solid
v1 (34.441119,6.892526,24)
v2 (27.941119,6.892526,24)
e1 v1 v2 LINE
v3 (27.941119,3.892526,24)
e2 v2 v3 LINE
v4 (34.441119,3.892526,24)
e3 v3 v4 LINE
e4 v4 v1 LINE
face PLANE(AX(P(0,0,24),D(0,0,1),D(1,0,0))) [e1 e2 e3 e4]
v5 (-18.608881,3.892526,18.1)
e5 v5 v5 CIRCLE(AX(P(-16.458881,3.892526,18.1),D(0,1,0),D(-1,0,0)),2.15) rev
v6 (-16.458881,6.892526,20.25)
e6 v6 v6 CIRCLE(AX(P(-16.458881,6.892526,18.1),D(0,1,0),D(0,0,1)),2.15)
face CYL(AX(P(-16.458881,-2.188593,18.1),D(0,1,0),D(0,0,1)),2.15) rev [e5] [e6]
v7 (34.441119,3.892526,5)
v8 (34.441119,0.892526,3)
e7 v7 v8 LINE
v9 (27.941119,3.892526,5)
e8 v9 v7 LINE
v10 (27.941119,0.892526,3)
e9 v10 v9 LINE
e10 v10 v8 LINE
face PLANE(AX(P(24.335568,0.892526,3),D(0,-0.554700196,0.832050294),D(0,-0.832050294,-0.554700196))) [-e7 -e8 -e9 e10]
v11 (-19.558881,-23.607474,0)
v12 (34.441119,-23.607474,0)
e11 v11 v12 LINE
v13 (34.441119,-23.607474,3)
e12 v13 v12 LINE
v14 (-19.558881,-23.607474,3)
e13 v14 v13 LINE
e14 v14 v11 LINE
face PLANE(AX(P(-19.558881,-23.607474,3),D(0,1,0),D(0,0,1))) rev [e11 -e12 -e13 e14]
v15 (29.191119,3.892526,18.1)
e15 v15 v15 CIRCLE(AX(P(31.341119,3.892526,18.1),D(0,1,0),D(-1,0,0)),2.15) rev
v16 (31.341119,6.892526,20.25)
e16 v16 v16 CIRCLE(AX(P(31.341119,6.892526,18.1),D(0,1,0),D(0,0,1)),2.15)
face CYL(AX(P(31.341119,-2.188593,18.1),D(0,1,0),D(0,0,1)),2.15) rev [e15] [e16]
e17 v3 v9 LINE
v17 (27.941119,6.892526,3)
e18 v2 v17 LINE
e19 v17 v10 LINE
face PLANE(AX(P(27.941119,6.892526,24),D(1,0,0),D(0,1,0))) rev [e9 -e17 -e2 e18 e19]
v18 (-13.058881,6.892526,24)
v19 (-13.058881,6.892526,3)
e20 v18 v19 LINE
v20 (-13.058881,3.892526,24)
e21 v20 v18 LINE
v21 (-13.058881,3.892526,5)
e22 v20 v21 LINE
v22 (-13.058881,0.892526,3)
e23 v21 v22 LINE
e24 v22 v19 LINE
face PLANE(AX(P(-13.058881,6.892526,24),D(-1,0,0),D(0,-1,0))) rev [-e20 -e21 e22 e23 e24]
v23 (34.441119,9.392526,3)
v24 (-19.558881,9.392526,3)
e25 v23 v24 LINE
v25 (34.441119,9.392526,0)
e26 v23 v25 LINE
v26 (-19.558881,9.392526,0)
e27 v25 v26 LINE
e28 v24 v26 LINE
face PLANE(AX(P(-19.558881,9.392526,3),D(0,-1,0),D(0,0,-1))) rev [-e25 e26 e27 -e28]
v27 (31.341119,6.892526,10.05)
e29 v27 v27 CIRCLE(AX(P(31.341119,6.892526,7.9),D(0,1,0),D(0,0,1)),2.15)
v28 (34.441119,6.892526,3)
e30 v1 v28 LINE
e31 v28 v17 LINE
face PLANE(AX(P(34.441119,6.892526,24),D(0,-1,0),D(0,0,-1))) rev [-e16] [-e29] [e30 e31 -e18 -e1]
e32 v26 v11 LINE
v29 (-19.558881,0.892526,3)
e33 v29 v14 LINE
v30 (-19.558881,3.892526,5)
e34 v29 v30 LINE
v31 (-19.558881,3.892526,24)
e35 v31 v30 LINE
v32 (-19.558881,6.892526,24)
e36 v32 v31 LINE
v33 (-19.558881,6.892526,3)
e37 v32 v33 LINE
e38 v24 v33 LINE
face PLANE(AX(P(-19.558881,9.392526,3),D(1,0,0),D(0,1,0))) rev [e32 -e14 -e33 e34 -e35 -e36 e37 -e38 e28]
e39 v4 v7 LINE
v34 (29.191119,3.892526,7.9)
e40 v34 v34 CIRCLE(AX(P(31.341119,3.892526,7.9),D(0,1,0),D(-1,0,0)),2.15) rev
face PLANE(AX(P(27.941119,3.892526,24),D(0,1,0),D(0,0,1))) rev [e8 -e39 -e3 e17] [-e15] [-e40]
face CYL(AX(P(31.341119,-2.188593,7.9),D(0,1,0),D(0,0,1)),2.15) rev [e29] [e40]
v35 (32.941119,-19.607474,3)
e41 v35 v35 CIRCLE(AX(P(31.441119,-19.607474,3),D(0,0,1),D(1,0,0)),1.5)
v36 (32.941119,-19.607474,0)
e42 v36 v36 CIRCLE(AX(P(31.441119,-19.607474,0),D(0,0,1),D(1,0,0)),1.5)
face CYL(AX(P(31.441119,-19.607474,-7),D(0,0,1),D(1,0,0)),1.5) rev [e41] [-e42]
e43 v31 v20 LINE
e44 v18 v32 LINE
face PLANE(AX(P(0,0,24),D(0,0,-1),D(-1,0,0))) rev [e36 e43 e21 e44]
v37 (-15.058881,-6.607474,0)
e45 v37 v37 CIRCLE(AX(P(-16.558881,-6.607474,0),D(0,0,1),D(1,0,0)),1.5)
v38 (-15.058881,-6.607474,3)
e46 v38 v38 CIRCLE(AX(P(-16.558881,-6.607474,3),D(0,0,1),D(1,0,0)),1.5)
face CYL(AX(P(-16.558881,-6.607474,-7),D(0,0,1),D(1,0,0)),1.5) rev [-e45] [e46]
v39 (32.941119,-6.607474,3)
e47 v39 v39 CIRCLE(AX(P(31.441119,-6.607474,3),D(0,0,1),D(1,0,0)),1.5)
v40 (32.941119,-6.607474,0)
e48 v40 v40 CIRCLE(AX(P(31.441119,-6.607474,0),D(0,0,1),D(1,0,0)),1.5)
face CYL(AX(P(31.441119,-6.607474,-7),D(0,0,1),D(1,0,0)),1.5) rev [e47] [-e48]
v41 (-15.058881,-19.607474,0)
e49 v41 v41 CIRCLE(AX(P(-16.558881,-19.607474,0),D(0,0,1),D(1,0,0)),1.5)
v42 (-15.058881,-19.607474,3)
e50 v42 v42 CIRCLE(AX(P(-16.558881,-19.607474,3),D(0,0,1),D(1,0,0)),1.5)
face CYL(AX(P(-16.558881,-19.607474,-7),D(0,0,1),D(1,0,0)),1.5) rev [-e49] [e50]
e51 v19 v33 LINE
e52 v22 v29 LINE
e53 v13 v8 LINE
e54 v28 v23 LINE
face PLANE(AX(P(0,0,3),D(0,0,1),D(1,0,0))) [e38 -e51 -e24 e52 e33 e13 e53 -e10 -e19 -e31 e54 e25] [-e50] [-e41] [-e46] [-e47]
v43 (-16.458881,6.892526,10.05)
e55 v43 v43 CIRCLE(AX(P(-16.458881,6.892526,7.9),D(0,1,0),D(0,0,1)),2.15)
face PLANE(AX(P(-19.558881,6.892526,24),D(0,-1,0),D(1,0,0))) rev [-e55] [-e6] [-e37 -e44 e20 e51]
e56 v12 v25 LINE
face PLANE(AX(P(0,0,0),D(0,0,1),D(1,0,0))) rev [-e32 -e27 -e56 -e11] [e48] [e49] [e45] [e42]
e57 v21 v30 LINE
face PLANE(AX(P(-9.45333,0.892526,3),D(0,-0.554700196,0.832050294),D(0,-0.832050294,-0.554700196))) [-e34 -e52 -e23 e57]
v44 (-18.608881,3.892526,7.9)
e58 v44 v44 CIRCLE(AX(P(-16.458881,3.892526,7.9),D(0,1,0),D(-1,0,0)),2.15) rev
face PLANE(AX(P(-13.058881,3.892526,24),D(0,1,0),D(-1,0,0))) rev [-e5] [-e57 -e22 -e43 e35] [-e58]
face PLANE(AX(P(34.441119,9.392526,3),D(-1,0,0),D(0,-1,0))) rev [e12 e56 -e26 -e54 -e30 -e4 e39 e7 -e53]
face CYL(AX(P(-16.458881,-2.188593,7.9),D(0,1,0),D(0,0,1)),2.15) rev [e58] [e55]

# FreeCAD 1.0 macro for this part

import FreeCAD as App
import Part
import Sketcher
from FreeCAD import Vector
Q = App.Units.Quantity

doc = App.newDocument("Part")
body = doc.addObject("PartDesign::Body", "Body")

sketch1 = body.newObject("Sketcher::SketchObject", "Sketch")
sketch1.AttachmentSupport = (doc.getObject("XY_Plane"), [""])
sketch1.MapMode = "FlatFace"
sketch1.addGeometry(Part.LineSegment(Vector(-20, 9, 0), Vector(-20, -24, 0)), False)
sketch1.addGeometry(Part.LineSegment(Vector(-20, -24, 0), Vector(34, -24, 0)), False)
sketch1.addGeometry(Part.LineSegment(Vector(34, -24, 0), Vector(34, 9, 0)), False)
sketch1.addGeometry(Part.LineSegment(Vector(34, 9, 0), Vector(-20, 9, 0)), False)
sketch1.addConstraint(Sketcher.Constraint("Coincident", 0, 2, 1, 1))
sketch1.addConstraint(Sketcher.Constraint("Coincident", 1, 2, 2, 1))
sketch1.addConstraint(Sketcher.Constraint("Coincident", 2, 2, 3, 1))
sketch1.addConstraint(Sketcher.Constraint("Coincident", 3, 2, 0, 1))
sketch1.addConstraint(Sketcher.Constraint("Vertical", 0))
sketch1.addConstraint(Sketcher.Constraint("Horizontal", 1))
sketch1.addConstraint(Sketcher.Constraint("Vertical", 2))
sketch1.addConstraint(Sketcher.Constraint("Horizontal", 3))
sketch1.addConstraint(Sketcher.Constraint("DistanceX", 1, 1, 1, 2, Q("54 mm")))
sketch1.addConstraint(Sketcher.Constraint("DistanceY", 0, 2, 0, 1, Q("33 mm")))
sketch1.addConstraint(Sketcher.Constraint("DistanceX", 0, 2, -1, 1, Q("19.558881 mm")))
sketch1.addConstraint(Sketcher.Constraint("DistanceY", 0, 2, -1, 1, Q("23.607474 mm")))
pad1 = body.newObject("PartDesign::Pad", "Pad")
pad1.Profile = sketch1
pad1.Length = 3

sketch2 = body.newObject("Sketcher::SketchObject", "Sketch001")
sketch2.AttachmentSupport = (doc.getObject("XY_Plane"), [""])
sketch2.MapMode = "FlatFace"
sketch2.AttachmentOffset = App.Placement(Vector(0, 0, 3), App.Rotation())
sketch2.addGeometry(Part.LineSegment(Vector(27.9, 6.9, 0), Vector(27.9, 3.9, 0)), False)
sketch2.addGeometry(Part.LineSegment(Vector(27.9, 3.9, 0), Vector(34.4, 3.9, 0)), False)
sketch2.addGeometry(Part.LineSegment(Vector(34.4, 3.9, 0), Vector(34.4, 6.9, 0)), False)
sketch2.addGeometry(Part.LineSegment(Vector(34.4, 6.9, 0), Vector(27.9, 6.9, 0)), False)
sketch2.addGeometry(Part.LineSegment(Vector(-19.6, 6.9, 0), Vector(-19.6, 3.9, 0)), False)
sketch2.addGeometry(Part.LineSegment(Vector(-19.6, 3.9, 0), Vector(-13.1, 3.9, 0)), False)
sketch2.addGeometry(Part.LineSegment(Vector(-13.1, 3.9, 0), Vector(-13.1, 6.9, 0)), False)
sketch2.addGeometry(Part.LineSegment(Vector(-13.1, 6.9, 0), Vector(-19.6, 6.9, 0)), False)
sketch2.addConstraint(Sketcher.Constraint("Coincident", 0, 2, 1, 1))
sketch2.addConstraint(Sketcher.Constraint("Coincident", 1, 2, 2, 1))
sketch2.addConstraint(Sketcher.Constraint("Coincident", 2, 2, 3, 1))
sketch2.addConstraint(Sketcher.Constraint("Coincident", 3, 2, 0, 1))
sketch2.addConstraint(Sketcher.Constraint("Coincident", 4, 2, 5, 1))
sketch2.addConstraint(Sketcher.Constraint("Coincident", 5, 2, 6, 1))
sketch2.addConstraint(Sketcher.Constraint("Coincident", 6, 2, 7, 1))
sketch2.addConstraint(Sketcher.Constraint("Coincident", 7, 2, 4, 1))
sketch2.addConstraint(Sketcher.Constraint("Vertical", 0))
sketch2.addConstraint(Sketcher.Constraint("Horizontal", 1))
sketch2.addConstraint(Sketcher.Constraint("Vertical", 2))
sketch2.addConstraint(Sketcher.Constraint("Horizontal", 3))
sketch2.addConstraint(Sketcher.Constraint("Vertical", 4))
sketch2.addConstraint(Sketcher.Constraint("Horizontal", 5))
sketch2.addConstraint(Sketcher.Constraint("Vertical", 6))
sketch2.addConstraint(Sketcher.Constraint("Horizontal", 7))
sketch2.addConstraint(Sketcher.Constraint("Horizontal", 1, 2, 4, 2))
sketch2.addConstraint(Sketcher.Constraint("Horizontal", 3, 2, 6, 2))
sketch2.addConstraint(Sketcher.Constraint("Equal", 3, 5))
sketch2.addConstraint(Sketcher.Constraint("DistanceY", 0, 2, 0, 1, Q("3 mm")))
sketch2.addConstraint(Sketcher.Constraint("DistanceX", 1, 1, 1, 2, Q("6.5 mm")))
sketch2.addConstraint(Sketcher.Constraint("DistanceX", 4, 2, 1, 2, Q("54 mm")))
sketch2.addConstraint(Sketcher.Constraint("DistanceX", -1, 1, 0, 2, Q("27.941119 mm")))
sketch2.addConstraint(Sketcher.Constraint("DistanceY", -1, 1, 0, 2, Q("3.892526 mm")))
pad2 = body.newObject("PartDesign::Pad", "Pad001")
pad2.Profile = sketch2
pad2.Length = 21

sketch3 = body.newObject("Sketcher::SketchObject", "Sketch002")
sketch3.AttachmentSupport = (doc.getObject("XZ_Plane"), [""])
sketch3.MapMode = "FlatFace"
sketch3.AttachmentOffset = App.Placement(Vector(0, 0, -6.892526), App.Rotation())
sketch3.addGeometry(Part.Circle(Vector(31.3, 18.1, 0), Vector(0, 0, 1), 2.1), False)
sketch3.addGeometry(Part.Circle(Vector(31.3, 7.9, 0), Vector(0, 0, 1), 2.1), False)
sketch3.addGeometry(Part.Circle(Vector(-16.5, 18.1, 0), Vector(0, 0, 1), 2.1), False)
sketch3.addGeometry(Part.Circle(Vector(-16.5, 7.9, 0), Vector(0, 0, 1), 2.1), False)
sketch3.addConstraint(Sketcher.Constraint("Equal", 0, 1))
sketch3.addConstraint(Sketcher.Constraint("Equal", 1, 2))
sketch3.addConstraint(Sketcher.Constraint("Equal", 2, 3))
sketch3.addConstraint(Sketcher.Constraint("Horizontal", 0, 3, 2, 3))
sketch3.addConstraint(Sketcher.Constraint("Horizontal", 1, 3, 3, 3))
sketch3.addConstraint(Sketcher.Constraint("Vertical", 0, 3, 1, 3))
sketch3.addConstraint(Sketcher.Constraint("Vertical", 2, 3, 3, 3))
sketch3.addConstraint(Sketcher.Constraint("Diameter", 0, Q("4.3 mm")))
sketch3.addConstraint(Sketcher.Constraint("DistanceY", -1, 1, 0, 3, Q("18.1 mm")))
sketch3.addConstraint(Sketcher.Constraint("DistanceY", -1, 1, 1, 3, Q("7.9 mm")))
sketch3.addConstraint(Sketcher.Constraint("DistanceX", 2, 3, 0, 3, Q("47.8 mm")))
sketch3.addConstraint(Sketcher.Constraint("DistanceX", -1, 1, 0, 3, Q("31.341119 mm")))
pocket1 = body.newObject("PartDesign::Pocket", "Pocket")
pocket1.Profile = sketch3
pocket1.Length = 3
pocket1.Reversed = True

sketch4 = body.newObject("Sketcher::SketchObject", "Sketch003")
sketch4.AttachmentSupport = (doc.getObject("XY_Plane"), [""])
sketch4.MapMode = "FlatFace"
sketch4.AttachmentOffset = App.Placement(Vector(0, 0, 3), App.Rotation())
sketch4.addGeometry(Part.Circle(Vector(31.4, -19.6, 0), Vector(0, 0, 1), 1.5), False)
sketch4.addGeometry(Part.Circle(Vector(-16.6, -19.6, 0), Vector(0, 0, 1), 1.5), False)
sketch4.addGeometry(Part.Circle(Vector(-16.6, -6.6, 0), Vector(0, 0, 1), 1.5), False)
sketch4.addGeometry(Part.Circle(Vector(31.4, -6.6, 0), Vector(0, 0, 1), 1.5), False)
sketch4.addConstraint(Sketcher.Constraint("Equal", 0, 1))
sketch4.addConstraint(Sketcher.Constraint("Equal", 1, 2))
sketch4.addConstraint(Sketcher.Constraint("Equal", 2, 3))
sketch4.addConstraint(Sketcher.Constraint("Horizontal", 0, 3, 1, 3))
sketch4.addConstraint(Sketcher.Constraint("Horizontal", 2, 3, 3, 3))
sketch4.addConstraint(Sketcher.Constraint("Vertical", 1, 3, 2, 3))
sketch4.addConstraint(Sketcher.Constraint("Vertical", 0, 3, 3, 3))
sketch4.addConstraint(Sketcher.Constraint("Diameter", 0, Q("3 mm")))
sketch4.addConstraint(Sketcher.Constraint("DistanceX", 1, 3, 0, 3, Q("48 mm")))
sketch4.addConstraint(Sketcher.Constraint("DistanceY", 1, 3, 2, 3, Q("13 mm")))
sketch4.addConstraint(Sketcher.Constraint("DistanceX", -1, 1, 0, 3, Q("31.441119 mm")))
sketch4.addConstraint(Sketcher.Constraint("DistanceY", 0, 3, -1, 1, Q("19.607474 mm")))
pocket2 = body.newObject("PartDesign::Pocket", "Pocket001")
pocket2.Profile = sketch4
pocket2.Length = 10

sketch5 = body.newObject("Sketcher::SketchObject", "Sketch004")
sketch5.AttachmentSupport = (doc.getObject("YZ_Plane"), [""])
sketch5.MapMode = "FlatFace"
sketch5.AttachmentOffset = App.Placement(Vector(0, 0, 34.441119), App.Rotation())
sketch5.addGeometry(Part.LineSegment(Vector(3.9, 3, 0), Vector(3.9, 5, 0)), False)
sketch5.addGeometry(Part.LineSegment(Vector(3.9, 5, 0), Vector(0.9, 3, 0)), False)
sketch5.addGeometry(Part.LineSegment(Vector(0.9, 3, 0), Vector(3.9, 3, 0)), False)
sketch5.addConstraint(Sketcher.Constraint("Coincident", 0, 2, 1, 1))
sketch5.addConstraint(Sketcher.Constraint("Coincident", 1, 2, 2, 1))
sketch5.addConstraint(Sketcher.Constraint("Coincident", 2, 2, 0, 1))
sketch5.addConstraint(Sketcher.Constraint("Vertical", 0))
sketch5.addConstraint(Sketcher.Constraint("Horizontal", 2))
sketch5.addConstraint(Sketcher.Constraint("DistanceX", 2, 1, 2, 2, Q("3 mm")))
sketch5.addConstraint(Sketcher.Constraint("DistanceY", 0, 1, 0, 2, Q("2 mm")))
sketch5.addConstraint(Sketcher.Constraint("DistanceY", -1, 1, 0, 2, Q("5 mm")))
sketch5.addConstraint(Sketcher.Constraint("DistanceX", -1, 1, 0, 2, Q("3.892526 mm")))
pad3 = body.newObject("PartDesign::Pad", "Pad002")
pad3.Profile = sketch5
pad3.Length = 6.5
pad3.Reversed = True

sketch6 = body.newObject("Sketcher::SketchObject", "Sketch005")
sketch6.AttachmentSupport = (doc.getObject("YZ_Plane"), [""])
sketch6.MapMode = "FlatFace"
sketch6.AttachmentOffset = App.Placement(Vector(0, 0, -19.558881), App.Rotation())
sketch6.addGeometry(Part.LineSegment(Vector(3.9, 5, 0), Vector(3.9, 3, 0)), False)
sketch6.addGeometry(Part.LineSegment(Vector(3.9, 3, 0), Vector(0.9, 3, 0)), False)
sketch6.addGeometry(Part.LineSegment(Vector(0.9, 3, 0), Vector(3.9, 5, 0)), False)
sketch6.addConstraint(Sketcher.Constraint("Coincident", 0, 2, 1, 1))
sketch6.addConstraint(Sketcher.Constraint("Coincident", 1, 2, 2, 1))
sketch6.addConstraint(Sketcher.Constraint("Coincident", 2, 2, 0, 1))
sketch6.addConstraint(Sketcher.Constraint("Vertical", 0))
sketch6.addConstraint(Sketcher.Constraint("Horizontal", 1))
sketch6.addConstraint(Sketcher.Constraint("DistanceX", 1, 2, 1, 1, Q("3 mm")))
sketch6.addConstraint(Sketcher.Constraint("DistanceY", 0, 2, 0, 1, Q("2 mm")))
sketch6.addConstraint(Sketcher.Constraint("DistanceY", -1, 1, 0, 2, Q("3 mm")))
sketch6.addConstraint(Sketcher.Constraint("DistanceX", -1, 1, 0, 2, Q("3.892526 mm")))
pad4 = body.newObject("PartDesign::Pad", "Pad003")
pad4.Profile = sketch6
pad4.Length = 6.5

doc.recompute()
